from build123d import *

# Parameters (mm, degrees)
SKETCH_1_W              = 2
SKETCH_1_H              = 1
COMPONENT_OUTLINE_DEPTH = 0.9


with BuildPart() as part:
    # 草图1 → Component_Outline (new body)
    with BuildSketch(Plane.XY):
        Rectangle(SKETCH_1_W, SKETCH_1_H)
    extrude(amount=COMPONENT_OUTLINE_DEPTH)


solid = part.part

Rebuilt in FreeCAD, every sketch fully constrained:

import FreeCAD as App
import Part
import Sketcher

doc = App.newDocument("Part")
params = doc.addObject("Spreadsheet::Sheet", "Params")
for row, (alias, value) in enumerate([
    ("sketch1_width", "2 mm"),
    ("sketch1_height", "1 mm"),
    ("pad1_length", "0.9 mm"),
], start=1):
    params.set(f"A{row}", alias)
    params.set(f"B{row}", "=" + value)
    params.setAlias(f"B{row}", alias)

body = doc.addObject("PartDesign::Body", "Body")

# Sketch on XY plane
sketch1 = doc.addObject("Sketcher::SketchObject", "Sketch")
body.addObject(sketch1)
sketch1.AttachmentSupport = (doc.XY_Plane, [""])
sketch1.MapMode = "FlatFace"
sketch1.addGeometry(Part.LineSegment(App.Vector(-1, 0.5, 0), App.Vector(-1, -0.5, 0)), False)
sketch1.addGeometry(Part.LineSegment(App.Vector(-1, -0.5, 0), App.Vector(1, -0.5, 0)), False)
sketch1.addGeometry(Part.LineSegment(App.Vector(1, -0.5, 0), App.Vector(1, 0.5, 0)), False)
sketch1.addGeometry(Part.LineSegment(App.Vector(1, 0.5, 0), App.Vector(-1, 0.5, 0)), False)
sketch1.addConstraint(Sketcher.Constraint("Coincident", 0, 2, 1, 1))
sketch1.addConstraint(Sketcher.Constraint("Coincident", 1, 2, 2, 1))
sketch1.addConstraint(Sketcher.Constraint("Coincident", 2, 2, 3, 1))
sketch1.addConstraint(Sketcher.Constraint("Coincident", 3, 2, 0, 1))
sketch1.addConstraint(Sketcher.Constraint("Vertical", 0))
sketch1.addConstraint(Sketcher.Constraint("Horizontal", 1))
sketch1.addConstraint(Sketcher.Constraint("Vertical", 2))
sketch1.addConstraint(Sketcher.Constraint("Horizontal", 3))
sketch1.addConstraint(Sketcher.Constraint("Symmetric", 0, 2, 2, 2, -1, 1))
sketch1.addConstraint(Sketcher.Constraint("DistanceX", 1, 1, 1, 2, 2.0))
sketch1.addConstraint(Sketcher.Constraint("DistanceY", 0, 2, 0, 1, 1.0))
sketch1.setExpression("Constraints[9]", "Params.sketch1_width")
sketch1.setExpression("Constraints[10]", "Params.sketch1_height")
pad1 = doc.addObject("PartDesign::Pad", "Pad")
body.addObject(pad1)
pad1.Profile = sketch1
pad1.setExpression("Length", "Params.pad1_length")

doc.recompute()
